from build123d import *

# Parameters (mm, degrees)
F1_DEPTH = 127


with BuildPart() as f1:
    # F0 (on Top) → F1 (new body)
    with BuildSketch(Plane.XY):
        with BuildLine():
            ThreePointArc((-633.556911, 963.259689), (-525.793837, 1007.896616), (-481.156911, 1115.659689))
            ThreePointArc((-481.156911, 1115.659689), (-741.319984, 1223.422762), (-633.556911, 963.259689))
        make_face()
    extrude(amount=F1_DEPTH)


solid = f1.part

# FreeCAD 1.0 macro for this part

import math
import FreeCAD as App
import Part
import Sketcher

V = App.Vector
Q = App.Units.Quantity

doc = App.newDocument("Part")
params = doc.addObject("Spreadsheet::Sheet", "Params")
for row, (alias, value) in enumerate([
    ("sketch1_radius", "6 in"),
    ("pad1_length", "5 in"),
], start=1):
    params.set(f"A{row}", alias)
    params.set(f"B{row}", "=" + value)
    params.setAlias(f"B{row}", alias)

body = doc.addObject("PartDesign::Body", "Body")

sketch1 = doc.addObject("Sketcher::SketchObject", "Sketch")
body.addObject(sketch1)
sketch1.AttachmentSupport = (doc.XY_Plane, [""])
sketch1.MapMode = "FlatFace"
sketch1.addGeometry(Part.ArcOfCircle(Part.Circle(V(-634, 1116, 0), V(0, 0, 1), 152), math.radians(-90), math.radians(0)), False)
sketch1.addGeometry(Part.ArcOfCircle(Part.Circle(V(-634, 1116, 0), V(0, 0, 1), 152), math.radians(0), math.radians(270)), False)
sketch1.addConstraint(Sketcher.Constraint("Tangent", 0, 1, 1, 2))
sketch1.addConstraint(Sketcher.Constraint("Coincident", 1, 1, 0, 2))
sketch1.addConstraint(Sketcher.Constraint("Horizontal", 0, 3, 1, 1))
sketch1.addConstraint(Sketcher.Constraint("Vertical", 1, 3, 0, 1))
sketch1.addConstraint(Sketcher.Constraint("Radius", 0, Q("6 in")))
sketch1.addConstraint(Sketcher.Constraint("DistanceX", 0, 3, -1, 1, 633.556911))
sketch1.addConstraint(Sketcher.Constraint("DistanceY", -1, 1, 0, 3, 1115.659689))
sketch1.setExpression("Constraints[4]", "Params.sketch1_radius")
pad1 = doc.addObject("PartDesign::Pad", "Pad")
body.addObject(pad1)
pad1.Profile = sketch1
pad1.setExpression("Length", "Params.pad1_length")

doc.recompute()
